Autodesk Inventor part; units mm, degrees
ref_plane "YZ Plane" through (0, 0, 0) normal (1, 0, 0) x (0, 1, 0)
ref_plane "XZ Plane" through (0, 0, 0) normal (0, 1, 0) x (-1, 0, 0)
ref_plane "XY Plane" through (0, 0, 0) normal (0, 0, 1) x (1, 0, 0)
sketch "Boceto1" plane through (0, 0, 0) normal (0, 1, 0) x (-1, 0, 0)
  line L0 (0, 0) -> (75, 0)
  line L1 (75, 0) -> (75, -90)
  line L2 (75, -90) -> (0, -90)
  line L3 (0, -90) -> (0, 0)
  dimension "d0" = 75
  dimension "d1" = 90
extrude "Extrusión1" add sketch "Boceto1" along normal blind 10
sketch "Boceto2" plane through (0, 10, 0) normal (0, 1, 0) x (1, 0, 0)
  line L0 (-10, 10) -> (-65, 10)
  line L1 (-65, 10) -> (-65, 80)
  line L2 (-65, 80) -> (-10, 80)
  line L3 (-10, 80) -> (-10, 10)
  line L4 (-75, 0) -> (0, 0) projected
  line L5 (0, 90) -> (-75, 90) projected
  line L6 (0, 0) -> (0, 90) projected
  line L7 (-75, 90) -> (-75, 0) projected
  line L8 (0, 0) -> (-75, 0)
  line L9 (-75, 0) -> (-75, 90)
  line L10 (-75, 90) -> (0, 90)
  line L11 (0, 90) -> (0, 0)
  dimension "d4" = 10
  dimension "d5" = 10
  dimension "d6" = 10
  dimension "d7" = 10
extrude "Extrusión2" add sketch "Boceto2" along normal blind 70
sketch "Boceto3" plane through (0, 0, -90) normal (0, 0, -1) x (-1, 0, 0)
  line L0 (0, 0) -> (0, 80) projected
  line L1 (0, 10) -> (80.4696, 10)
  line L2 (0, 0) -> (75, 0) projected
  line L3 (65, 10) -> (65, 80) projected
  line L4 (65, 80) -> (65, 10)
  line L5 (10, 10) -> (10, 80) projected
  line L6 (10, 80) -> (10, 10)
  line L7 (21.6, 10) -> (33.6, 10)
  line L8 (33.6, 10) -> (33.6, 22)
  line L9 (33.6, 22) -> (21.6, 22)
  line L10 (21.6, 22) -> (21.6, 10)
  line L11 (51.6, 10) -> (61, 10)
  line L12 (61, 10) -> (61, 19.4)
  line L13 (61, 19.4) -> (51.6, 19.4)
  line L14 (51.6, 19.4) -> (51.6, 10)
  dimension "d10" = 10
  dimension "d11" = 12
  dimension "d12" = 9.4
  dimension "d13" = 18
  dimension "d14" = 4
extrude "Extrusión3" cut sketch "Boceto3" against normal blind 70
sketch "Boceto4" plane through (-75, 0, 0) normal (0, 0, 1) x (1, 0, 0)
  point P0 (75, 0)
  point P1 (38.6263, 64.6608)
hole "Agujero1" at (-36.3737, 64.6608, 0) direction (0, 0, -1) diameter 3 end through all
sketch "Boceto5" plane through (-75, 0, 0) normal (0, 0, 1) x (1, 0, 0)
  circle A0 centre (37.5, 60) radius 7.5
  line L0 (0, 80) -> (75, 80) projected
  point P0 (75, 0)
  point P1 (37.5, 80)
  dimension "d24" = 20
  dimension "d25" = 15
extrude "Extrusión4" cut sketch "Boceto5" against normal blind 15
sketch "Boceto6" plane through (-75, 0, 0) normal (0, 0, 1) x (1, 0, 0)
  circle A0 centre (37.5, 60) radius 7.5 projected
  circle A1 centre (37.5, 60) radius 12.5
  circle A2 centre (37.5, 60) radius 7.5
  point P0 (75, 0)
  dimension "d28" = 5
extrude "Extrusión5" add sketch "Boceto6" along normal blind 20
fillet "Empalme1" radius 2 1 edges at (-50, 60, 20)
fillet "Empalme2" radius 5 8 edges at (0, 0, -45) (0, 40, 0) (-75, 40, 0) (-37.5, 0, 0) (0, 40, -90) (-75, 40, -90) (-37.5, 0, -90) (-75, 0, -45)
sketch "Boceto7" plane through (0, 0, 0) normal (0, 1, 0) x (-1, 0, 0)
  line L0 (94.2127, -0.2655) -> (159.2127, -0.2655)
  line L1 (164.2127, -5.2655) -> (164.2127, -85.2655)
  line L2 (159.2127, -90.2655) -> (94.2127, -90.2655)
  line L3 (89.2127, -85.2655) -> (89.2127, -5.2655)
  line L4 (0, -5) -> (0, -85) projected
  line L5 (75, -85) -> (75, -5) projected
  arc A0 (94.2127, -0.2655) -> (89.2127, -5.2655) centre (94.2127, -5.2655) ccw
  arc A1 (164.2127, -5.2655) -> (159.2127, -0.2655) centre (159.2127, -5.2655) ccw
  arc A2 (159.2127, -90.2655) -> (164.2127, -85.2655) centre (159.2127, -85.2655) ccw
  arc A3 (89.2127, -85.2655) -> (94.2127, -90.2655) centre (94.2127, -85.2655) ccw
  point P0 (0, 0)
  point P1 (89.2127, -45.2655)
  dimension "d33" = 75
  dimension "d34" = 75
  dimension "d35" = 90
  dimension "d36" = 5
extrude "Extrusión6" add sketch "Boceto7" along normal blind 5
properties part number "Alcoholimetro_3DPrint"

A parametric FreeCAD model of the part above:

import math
import FreeCAD as App
import Part
import Sketcher


def edges_at(feature, points):
    """Names of the edges that pass closest to the given points."""
    edges = feature.Shape.Edges
    near = lambda p: min(range(len(edges)), key=lambda i: edges[i].distToShape(Part.Vertex(*p))[0])
    return sorted({f"Edge{near(p) + 1}" for p in points})

doc = App.newDocument("Part")
body = doc.addObject("PartDesign::Body", "Body")
body.AllowCompound = True

# Sketch on XZ plane
sketch1 = body.newObject("Sketcher::SketchObject", "Sketch")
sketch1.AttachmentSupport = (doc.getObject("XZ_Plane"), [""])
sketch1.MapMode = "FlatFace"
sketch1.addGeometry(Part.LineSegment(App.Vector(-75, 0, 0), App.Vector(0, 0, 0)), False)
sketch1.addGeometry(Part.LineSegment(App.Vector(0, 0, 0), App.Vector(0, -90, 0)), False)
sketch1.addGeometry(Part.LineSegment(App.Vector(0, -90, 0), App.Vector(-75, -90, 0)), False)
sketch1.addGeometry(Part.LineSegment(App.Vector(-75, -90, 0), App.Vector(-75, 0, 0)), False)
sketch1.addConstraint(Sketcher.Constraint("Coincident", 0, 2, 1, 1))
sketch1.addConstraint(Sketcher.Constraint("Coincident", 1, 2, 2, 1))
sketch1.addConstraint(Sketcher.Constraint("Coincident", 2, 2, 3, 1))
sketch1.addConstraint(Sketcher.Constraint("Coincident", 3, 2, 0, 1))
sketch1.addConstraint(Sketcher.Constraint("Horizontal", 0))
sketch1.addConstraint(Sketcher.Constraint("Vertical", 1))
sketch1.addConstraint(Sketcher.Constraint("Horizontal", 2))
sketch1.addConstraint(Sketcher.Constraint("Vertical", 3))
sketch1.addConstraint(Sketcher.Constraint("Coincident", 0, 2, -1, 1))
sketch1.addConstraint(Sketcher.Constraint("DistanceX", 0, 1, 0, 2, 75.0))
sketch1.addConstraint(Sketcher.Constraint("DistanceY", 1, 2, 1, 1, 90.0))
pad1 = body.newObject("PartDesign::Pad", "Pad")
pad1.Profile = sketch1
pad1.Length = 10
pad1.Reversed = True

# Sketch on XZ plane
sketch2 = body.newObject("Sketcher::SketchObject", "Sketch001")
sketch2.AttachmentSupport = (doc.getObject("XZ_Plane"), [""])
sketch2.MapMode = "FlatFace"
sketch2.AttachmentOffset = App.Placement(App.Vector(0, 0, -10), App.Rotation())
sketch2.addGeometry(Part.LineSegment(App.Vector(-75, -90, 0), App.Vector(-75, 0, 0)), False)
sketch2.addGeometry(Part.LineSegment(App.Vector(-75, 0, 0), App.Vector(0, 0, 0)), False)
sketch2.addGeometry(Part.LineSegment(App.Vector(0, 0, 0), App.Vector(0, -90, 0)), False)
sketch2.addGeometry(Part.LineSegment(App.Vector(0, -90, 0), App.Vector(-75, -90, 0)), False)
sketch2.addGeometry(Part.LineSegment(App.Vector(-10, -80, 0), App.Vector(-10, -10, 0)), False)
sketch2.addGeometry(Part.LineSegment(App.Vector(-10, -10, 0), App.Vector(-65, -10, 0)), False)
sketch2.addGeometry(Part.LineSegment(App.Vector(-65, -10, 0), App.Vector(-65, -80, 0)), False)
sketch2.addGeometry(Part.LineSegment(App.Vector(-65, -80, 0), App.Vector(-10, -80, 0)), False)
sketch2.addConstraint(Sketcher.Constraint("Coincident", 0, 2, 1, 1))
sketch2.addConstraint(Sketcher.Constraint("Coincident", 1, 2, 2, 1))
sketch2.addConstraint(Sketcher.Constraint("Coincident", 2, 2, 3, 1))
sketch2.addConstraint(Sketcher.Constraint("Coincident", 3, 2, 0, 1))
sketch2.addConstraint(Sketcher.Constraint("Coincident", 4, 2, 5, 1))
sketch2.addConstraint(Sketcher.Constraint("Coincident", 5, 2, 6, 1))
sketch2.addConstraint(Sketcher.Constraint("Coincident", 6, 2, 7, 1))
sketch2.addConstraint(Sketcher.Constraint("Coincident", 7, 2, 4, 1))
sketch2.addConstraint(Sketcher.Constraint("Vertical", 0))
sketch2.addConstraint(Sketcher.Constraint("Horizontal", 1))
sketch2.addConstraint(Sketcher.Constraint("Vertical", 2))
sketch2.addConstraint(Sketcher.Constraint("Horizontal", 3))
sketch2.addConstraint(Sketcher.Constraint("Vertical", 4))
sketch2.addConstraint(Sketcher.Constraint("Horizontal", 5))
sketch2.addConstraint(Sketcher.Constraint("Vertical", 6))
sketch2.addConstraint(Sketcher.Constraint("Horizontal", 7))
sketch2.addConstraint(Sketcher.Constraint("Coincident", 1, 2, -1, 1))
sketch2.addConstraint(Sketcher.Constraint("DistanceX", 4, 2, -1, 1, 10.0))
sketch2.addConstraint(Sketcher.Constraint("DistanceY", 4, 2, -1, 1, 10.0))
sketch2.addConstraint(Sketcher.Constraint("DistanceX", 0, 2, 5, 2, 10.0))
sketch2.addConstraint(Sketcher.Constraint("DistanceY", 3, 2, 6, 2, 10.0))
sketch2.addConstraint(Sketcher.Constraint("DistanceX", 1, 1, 1, 2, 75.0))
sketch2.addConstraint(Sketcher.Constraint("DistanceY", 0, 1, 0, 2, 90.0))
pad2 = body.newObject("PartDesign::Pad", "Pad001")
pad2.Profile = sketch2
pad2.Length = 70
pad2.Reversed = True

# Sketch on XY plane
sketch3 = body.newObject("Sketcher::SketchObject", "Sketch002")
sketch3.AttachmentSupport = (doc.getObject("XY_Plane"), [""])
sketch3.MapMode = "FlatFace"
sketch3.AttachmentOffset = App.Placement(App.Vector(0, 0, -90), App.Rotation())
sketch3.addGeometry(Part.LineSegment(App.Vector(-22, 22, 0), App.Vector(-22, 10, 0)), False)
sketch3.addGeometry(Part.LineSegment(App.Vector(-22, 10, 0), App.Vector(-34, 10, 0)), False)
sketch3.addGeometry(Part.LineSegment(App.Vector(-34, 10, 0), App.Vector(-34, 22, 0)), False)
sketch3.addGeometry(Part.LineSegment(App.Vector(-34, 22, 0), App.Vector(-22, 22, 0)), False)
sketch3.addGeometry(Part.LineSegment(App.Vector(-52, 19, 0), App.Vector(-52, 10, 0)), False)
sketch3.addGeometry(Part.LineSegment(App.Vector(-52, 10, 0), App.Vector(-61, 10, 0)), False)
sketch3.addGeometry(Part.LineSegment(App.Vector(-61, 10, 0), App.Vector(-61, 19, 0)), False)
sketch3.addGeometry(Part.LineSegment(App.Vector(-61, 19, 0), App.Vector(-52, 19, 0)), False)
sketch3.addConstraint(Sketcher.Constraint("Coincident", 0, 2, 1, 1))
sketch3.addConstraint(Sketcher.Constraint("Coincident", 1, 2, 2, 1))
sketch3.addConstraint(Sketcher.Constraint("Coincident", 2, 2, 3, 1))
sketch3.addConstraint(Sketcher.Constraint("Coincident", 3, 2, 0, 1))
sketch3.addConstraint(Sketcher.Constraint("Coincident", 4, 2, 5, 1))
sketch3.addConstraint(Sketcher.Constraint("Coincident", 5, 2, 6, 1))
sketch3.addConstraint(Sketcher.Constraint("Coincident", 6, 2, 7, 1))
sketch3.addConstraint(Sketcher.Constraint("Coincident", 7, 2, 4, 1))
sketch3.addConstraint(Sketcher.Constraint("Vertical", 0))
sketch3.addConstraint(Sketcher.Constraint("Horizontal", 1))
sketch3.addConstraint(Sketcher.Constraint("Vertical", 2))
sketch3.addConstraint(Sketcher.Constraint("Horizontal", 3))
sketch3.addConstraint(Sketcher.Constraint("Vertical", 4))
sketch3.addConstraint(Sketcher.Constraint("Horizontal", 5))
sketch3.addConstraint(Sketcher.Constraint("Vertical", 6))
sketch3.addConstraint(Sketcher.Constraint("Horizontal", 7))
sketch3.addConstraint(Sketcher.Constraint("Horizontal", 1, 2, 4, 2))
sketch3.addConstraint(Sketcher.Constraint("Equal", 3, 0))
sketch3.addConstraint(Sketcher.Constraint("Equal", 7, 4))
sketch3.addConstraint(Sketcher.Constraint("DistanceX", 1, 2, 1, 1, 12.0))
sketch3.addConstraint(Sketcher.Constraint("DistanceX", 5, 2, 5, 1, 9.4))
sketch3.addConstraint(Sketcher.Constraint("DistanceY", -1, 1, 0, 2, 10.0))
sketch3.addConstraint(Sketcher.Constraint("DistanceX", 4, 2, 1, 2, 18.0))
sketch3.addConstraint(Sketcher.Constraint("DistanceX", 5, 2, -1, 1, 61.0))
pocket1 = body.newObject("PartDesign::Pocket", "Pocket")
pocket1.Profile = sketch3
pocket1.Length = 70
pocket1.Reversed = True

# Sketch on XY plane
sketch4 = body.newObject("Sketcher::SketchObject", "Sketch003")
sketch4.AttachmentSupport = (doc.getObject("XY_Plane"), [""])
sketch4.MapMode = "FlatFace"
sketch4.addGeometry(Part.Circle(App.Vector(-36.4, 64.7, 0), App.Vector(0, 0, 1), 1.5), False)
sketch4.addConstraint(Sketcher.Constraint("Diameter", 0, 3.0))
sketch4.addConstraint(Sketcher.Constraint("DistanceX", 0, 3, -1, 1, 36.3737))
sketch4.addConstraint(Sketcher.Constraint("DistanceY", -1, 1, 0, 3, 64.6608))
doc.recompute()
hole = body.newObject("PartDesign::Hole", "Hole")
hole.Profile = sketch4
hole.ThreadType = "None"
hole.Diameter = 3
hole.DepthType = "ThroughAll"

# Sketch on XY plane
sketch5 = body.newObject("Sketcher::SketchObject", "Sketch004")
sketch5.AttachmentSupport = (doc.getObject("XY_Plane"), [""])
sketch5.MapMode = "FlatFace"
sketch5.addGeometry(Part.Circle(App.Vector(-38, 60, 0), App.Vector(0, 0, 1), 8), False)
sketch5.addConstraint(Sketcher.Constraint("Diameter", 0, 15.0))
sketch5.addConstraint(Sketcher.Constraint("DistanceY", -1, 1, 0, 3, 60.0))
sketch5.addConstraint(Sketcher.Constraint("DistanceX", 0, 3, -1, 1, 37.5))
pocket2 = body.newObject("PartDesign::Pocket", "Pocket001")
pocket2.Profile = sketch5
pocket2.Length = 15

# Sketch on XY plane
sketch6 = body.newObject("Sketcher::SketchObject", "Sketch005")
sketch6.AttachmentSupport = (doc.getObject("XY_Plane"), [""])
sketch6.MapMode = "FlatFace"
sketch6.addGeometry(Part.Circle(App.Vector(-38, 60, 0), App.Vector(0, 0, 1), 12), False)
sketch6.addGeometry(Part.Circle(App.Vector(-38, 60, 0), App.Vector(0, 0, 1), 8), False)
sketch6.addConstraint(Sketcher.Constraint("Coincident", 1, 3, 0, 3))
sketch6.addConstraint(Sketcher.Constraint("Diameter", 0, 25.0))
sketch6.addConstraint(Sketcher.Constraint("Diameter", 1, 15.0))
sketch6.addConstraint(Sketcher.Constraint("DistanceY", -1, 1, 0, 3, 60.0))
sketch6.addConstraint(Sketcher.Constraint("DistanceX", 0, 3, -1, 1, 37.5))
pad3 = body.newObject("PartDesign::Pad", "Pad002")
pad3.Profile = sketch6
pad3.Length = 20
doc.recompute()

fillet = body.newObject("PartDesign::Fillet", "Fillet")
fillet.Base = (pad3, edges_at(pad3, [(-50, 60, 20)]))
fillet.Radius = 2
doc.recompute()

fillet2 = body.newObject("PartDesign::Fillet", "Fillet001")
fillet2.Base = (fillet, edges_at(fillet, [
    (0, 0, -45),
    (0, 40, 0),
    (-75, 40, 0),
    (-37.5, 0, 0),
    (0, 40, -90),
    (-75, 40, -90),
    (-37.5, 0, -90),
    (-75, 0, -45),
]))
fillet2.Radius = 5

# Sketch on XZ plane
sketch7 = body.newObject("Sketcher::SketchObject", "Sketch006")
sketch7.AttachmentSupport = (doc.getObject("XZ_Plane"), [""])
sketch7.MapMode = "FlatFace"
sketch7.addGeometry(Part.LineSegment(App.Vector(-159, 0, 0), App.Vector(-94, 0, 0)), False)
sketch7.addGeometry(Part.ArcOfCircle(Part.Circle(App.Vector(-94, -5, 0), App.Vector(0, 0, 1), 5), math.radians(0), math.radians(90)), False)
sketch7.addGeometry(Part.LineSegment(App.Vector(-89, -5, 0), App.Vector(-89, -85, 0)), False)
sketch7.addGeometry(Part.ArcOfCircle(Part.Circle(App.Vector(-94, -85, 0), App.Vector(0, 0, 1), 5), math.radians(-90), math.radians(0)), False)
sketch7.addGeometry(Part.LineSegment(App.Vector(-94, -90, 0), App.Vector(-159, -90, 0)), False)
sketch7.addGeometry(Part.ArcOfCircle(Part.Circle(App.Vector(-159, -85, 0), App.Vector(0, 0, 1), 5), math.radians(180), math.radians(270)), False)
sketch7.addGeometry(Part.LineSegment(App.Vector(-164, -85, 0), App.Vector(-164, -5, 0)), False)
sketch7.addGeometry(Part.ArcOfCircle(Part.Circle(App.Vector(-159, -5, 0), App.Vector(0, 0, 1), 5), math.radians(90), math.radians(180)), False)
sketch7.addConstraint(Sketcher.Constraint("Tangent", 0, 2, 1, 2))
sketch7.addConstraint(Sketcher.Constraint("Tangent", 1, 1, 2, 1))
sketch7.addConstraint(Sketcher.Constraint("Tangent", 2, 2, 3, 2))
sketch7.addConstraint(Sketcher.Constraint("Tangent", 3, 1, 4, 1))
sketch7.addConstraint(Sketcher.Constraint("Tangent", 4, 2, 5, 2))
sketch7.addConstraint(Sketcher.Constraint("Tangent", 5, 1, 6, 1))
sketch7.addConstraint(Sketcher.Constraint("Tangent", 6, 2, 7, 2))
sketch7.addConstraint(Sketcher.Constraint("Tangent", 7, 1, 0, 1))
sketch7.addConstraint(Sketcher.Constraint("Horizontal", 0))
sketch7.addConstraint(Sketcher.Constraint("Vertical", 2))
sketch7.addConstraint(Sketcher.Constraint("Horizontal", 4))
sketch7.addConstraint(Sketcher.Constraint("Vertical", 6))
sketch7.addConstraint(Sketcher.Constraint("Equal", 1, 3))
sketch7.addConstraint(Sketcher.Constraint("Equal", 3, 5))
sketch7.addConstraint(Sketcher.Constraint("Equal", 5, 7))
sketch7.addConstraint(Sketcher.Constraint("Radius", 1, 5.0))
sketch7.addConstraint(Sketcher.Constraint("DistanceX", 5, 1, 2, 2, 75.0))
sketch7.addConstraint(Sketcher.Constraint("DistanceY", 2, 2, 2, 1, 80.0))
sketch7.addConstraint(Sketcher.Constraint("DistanceX", 1, 3, -1, 1, 94.2127))
sketch7.addConstraint(Sketcher.Constraint("DistanceY", 1, 3, -1, 1, 5.2655))
pad4 = body.newObject("PartDesign::Pad", "Pad003")
pad4.Profile = sketch7
pad4.Length = 5
pad4.Reversed = True

doc.recompute()
